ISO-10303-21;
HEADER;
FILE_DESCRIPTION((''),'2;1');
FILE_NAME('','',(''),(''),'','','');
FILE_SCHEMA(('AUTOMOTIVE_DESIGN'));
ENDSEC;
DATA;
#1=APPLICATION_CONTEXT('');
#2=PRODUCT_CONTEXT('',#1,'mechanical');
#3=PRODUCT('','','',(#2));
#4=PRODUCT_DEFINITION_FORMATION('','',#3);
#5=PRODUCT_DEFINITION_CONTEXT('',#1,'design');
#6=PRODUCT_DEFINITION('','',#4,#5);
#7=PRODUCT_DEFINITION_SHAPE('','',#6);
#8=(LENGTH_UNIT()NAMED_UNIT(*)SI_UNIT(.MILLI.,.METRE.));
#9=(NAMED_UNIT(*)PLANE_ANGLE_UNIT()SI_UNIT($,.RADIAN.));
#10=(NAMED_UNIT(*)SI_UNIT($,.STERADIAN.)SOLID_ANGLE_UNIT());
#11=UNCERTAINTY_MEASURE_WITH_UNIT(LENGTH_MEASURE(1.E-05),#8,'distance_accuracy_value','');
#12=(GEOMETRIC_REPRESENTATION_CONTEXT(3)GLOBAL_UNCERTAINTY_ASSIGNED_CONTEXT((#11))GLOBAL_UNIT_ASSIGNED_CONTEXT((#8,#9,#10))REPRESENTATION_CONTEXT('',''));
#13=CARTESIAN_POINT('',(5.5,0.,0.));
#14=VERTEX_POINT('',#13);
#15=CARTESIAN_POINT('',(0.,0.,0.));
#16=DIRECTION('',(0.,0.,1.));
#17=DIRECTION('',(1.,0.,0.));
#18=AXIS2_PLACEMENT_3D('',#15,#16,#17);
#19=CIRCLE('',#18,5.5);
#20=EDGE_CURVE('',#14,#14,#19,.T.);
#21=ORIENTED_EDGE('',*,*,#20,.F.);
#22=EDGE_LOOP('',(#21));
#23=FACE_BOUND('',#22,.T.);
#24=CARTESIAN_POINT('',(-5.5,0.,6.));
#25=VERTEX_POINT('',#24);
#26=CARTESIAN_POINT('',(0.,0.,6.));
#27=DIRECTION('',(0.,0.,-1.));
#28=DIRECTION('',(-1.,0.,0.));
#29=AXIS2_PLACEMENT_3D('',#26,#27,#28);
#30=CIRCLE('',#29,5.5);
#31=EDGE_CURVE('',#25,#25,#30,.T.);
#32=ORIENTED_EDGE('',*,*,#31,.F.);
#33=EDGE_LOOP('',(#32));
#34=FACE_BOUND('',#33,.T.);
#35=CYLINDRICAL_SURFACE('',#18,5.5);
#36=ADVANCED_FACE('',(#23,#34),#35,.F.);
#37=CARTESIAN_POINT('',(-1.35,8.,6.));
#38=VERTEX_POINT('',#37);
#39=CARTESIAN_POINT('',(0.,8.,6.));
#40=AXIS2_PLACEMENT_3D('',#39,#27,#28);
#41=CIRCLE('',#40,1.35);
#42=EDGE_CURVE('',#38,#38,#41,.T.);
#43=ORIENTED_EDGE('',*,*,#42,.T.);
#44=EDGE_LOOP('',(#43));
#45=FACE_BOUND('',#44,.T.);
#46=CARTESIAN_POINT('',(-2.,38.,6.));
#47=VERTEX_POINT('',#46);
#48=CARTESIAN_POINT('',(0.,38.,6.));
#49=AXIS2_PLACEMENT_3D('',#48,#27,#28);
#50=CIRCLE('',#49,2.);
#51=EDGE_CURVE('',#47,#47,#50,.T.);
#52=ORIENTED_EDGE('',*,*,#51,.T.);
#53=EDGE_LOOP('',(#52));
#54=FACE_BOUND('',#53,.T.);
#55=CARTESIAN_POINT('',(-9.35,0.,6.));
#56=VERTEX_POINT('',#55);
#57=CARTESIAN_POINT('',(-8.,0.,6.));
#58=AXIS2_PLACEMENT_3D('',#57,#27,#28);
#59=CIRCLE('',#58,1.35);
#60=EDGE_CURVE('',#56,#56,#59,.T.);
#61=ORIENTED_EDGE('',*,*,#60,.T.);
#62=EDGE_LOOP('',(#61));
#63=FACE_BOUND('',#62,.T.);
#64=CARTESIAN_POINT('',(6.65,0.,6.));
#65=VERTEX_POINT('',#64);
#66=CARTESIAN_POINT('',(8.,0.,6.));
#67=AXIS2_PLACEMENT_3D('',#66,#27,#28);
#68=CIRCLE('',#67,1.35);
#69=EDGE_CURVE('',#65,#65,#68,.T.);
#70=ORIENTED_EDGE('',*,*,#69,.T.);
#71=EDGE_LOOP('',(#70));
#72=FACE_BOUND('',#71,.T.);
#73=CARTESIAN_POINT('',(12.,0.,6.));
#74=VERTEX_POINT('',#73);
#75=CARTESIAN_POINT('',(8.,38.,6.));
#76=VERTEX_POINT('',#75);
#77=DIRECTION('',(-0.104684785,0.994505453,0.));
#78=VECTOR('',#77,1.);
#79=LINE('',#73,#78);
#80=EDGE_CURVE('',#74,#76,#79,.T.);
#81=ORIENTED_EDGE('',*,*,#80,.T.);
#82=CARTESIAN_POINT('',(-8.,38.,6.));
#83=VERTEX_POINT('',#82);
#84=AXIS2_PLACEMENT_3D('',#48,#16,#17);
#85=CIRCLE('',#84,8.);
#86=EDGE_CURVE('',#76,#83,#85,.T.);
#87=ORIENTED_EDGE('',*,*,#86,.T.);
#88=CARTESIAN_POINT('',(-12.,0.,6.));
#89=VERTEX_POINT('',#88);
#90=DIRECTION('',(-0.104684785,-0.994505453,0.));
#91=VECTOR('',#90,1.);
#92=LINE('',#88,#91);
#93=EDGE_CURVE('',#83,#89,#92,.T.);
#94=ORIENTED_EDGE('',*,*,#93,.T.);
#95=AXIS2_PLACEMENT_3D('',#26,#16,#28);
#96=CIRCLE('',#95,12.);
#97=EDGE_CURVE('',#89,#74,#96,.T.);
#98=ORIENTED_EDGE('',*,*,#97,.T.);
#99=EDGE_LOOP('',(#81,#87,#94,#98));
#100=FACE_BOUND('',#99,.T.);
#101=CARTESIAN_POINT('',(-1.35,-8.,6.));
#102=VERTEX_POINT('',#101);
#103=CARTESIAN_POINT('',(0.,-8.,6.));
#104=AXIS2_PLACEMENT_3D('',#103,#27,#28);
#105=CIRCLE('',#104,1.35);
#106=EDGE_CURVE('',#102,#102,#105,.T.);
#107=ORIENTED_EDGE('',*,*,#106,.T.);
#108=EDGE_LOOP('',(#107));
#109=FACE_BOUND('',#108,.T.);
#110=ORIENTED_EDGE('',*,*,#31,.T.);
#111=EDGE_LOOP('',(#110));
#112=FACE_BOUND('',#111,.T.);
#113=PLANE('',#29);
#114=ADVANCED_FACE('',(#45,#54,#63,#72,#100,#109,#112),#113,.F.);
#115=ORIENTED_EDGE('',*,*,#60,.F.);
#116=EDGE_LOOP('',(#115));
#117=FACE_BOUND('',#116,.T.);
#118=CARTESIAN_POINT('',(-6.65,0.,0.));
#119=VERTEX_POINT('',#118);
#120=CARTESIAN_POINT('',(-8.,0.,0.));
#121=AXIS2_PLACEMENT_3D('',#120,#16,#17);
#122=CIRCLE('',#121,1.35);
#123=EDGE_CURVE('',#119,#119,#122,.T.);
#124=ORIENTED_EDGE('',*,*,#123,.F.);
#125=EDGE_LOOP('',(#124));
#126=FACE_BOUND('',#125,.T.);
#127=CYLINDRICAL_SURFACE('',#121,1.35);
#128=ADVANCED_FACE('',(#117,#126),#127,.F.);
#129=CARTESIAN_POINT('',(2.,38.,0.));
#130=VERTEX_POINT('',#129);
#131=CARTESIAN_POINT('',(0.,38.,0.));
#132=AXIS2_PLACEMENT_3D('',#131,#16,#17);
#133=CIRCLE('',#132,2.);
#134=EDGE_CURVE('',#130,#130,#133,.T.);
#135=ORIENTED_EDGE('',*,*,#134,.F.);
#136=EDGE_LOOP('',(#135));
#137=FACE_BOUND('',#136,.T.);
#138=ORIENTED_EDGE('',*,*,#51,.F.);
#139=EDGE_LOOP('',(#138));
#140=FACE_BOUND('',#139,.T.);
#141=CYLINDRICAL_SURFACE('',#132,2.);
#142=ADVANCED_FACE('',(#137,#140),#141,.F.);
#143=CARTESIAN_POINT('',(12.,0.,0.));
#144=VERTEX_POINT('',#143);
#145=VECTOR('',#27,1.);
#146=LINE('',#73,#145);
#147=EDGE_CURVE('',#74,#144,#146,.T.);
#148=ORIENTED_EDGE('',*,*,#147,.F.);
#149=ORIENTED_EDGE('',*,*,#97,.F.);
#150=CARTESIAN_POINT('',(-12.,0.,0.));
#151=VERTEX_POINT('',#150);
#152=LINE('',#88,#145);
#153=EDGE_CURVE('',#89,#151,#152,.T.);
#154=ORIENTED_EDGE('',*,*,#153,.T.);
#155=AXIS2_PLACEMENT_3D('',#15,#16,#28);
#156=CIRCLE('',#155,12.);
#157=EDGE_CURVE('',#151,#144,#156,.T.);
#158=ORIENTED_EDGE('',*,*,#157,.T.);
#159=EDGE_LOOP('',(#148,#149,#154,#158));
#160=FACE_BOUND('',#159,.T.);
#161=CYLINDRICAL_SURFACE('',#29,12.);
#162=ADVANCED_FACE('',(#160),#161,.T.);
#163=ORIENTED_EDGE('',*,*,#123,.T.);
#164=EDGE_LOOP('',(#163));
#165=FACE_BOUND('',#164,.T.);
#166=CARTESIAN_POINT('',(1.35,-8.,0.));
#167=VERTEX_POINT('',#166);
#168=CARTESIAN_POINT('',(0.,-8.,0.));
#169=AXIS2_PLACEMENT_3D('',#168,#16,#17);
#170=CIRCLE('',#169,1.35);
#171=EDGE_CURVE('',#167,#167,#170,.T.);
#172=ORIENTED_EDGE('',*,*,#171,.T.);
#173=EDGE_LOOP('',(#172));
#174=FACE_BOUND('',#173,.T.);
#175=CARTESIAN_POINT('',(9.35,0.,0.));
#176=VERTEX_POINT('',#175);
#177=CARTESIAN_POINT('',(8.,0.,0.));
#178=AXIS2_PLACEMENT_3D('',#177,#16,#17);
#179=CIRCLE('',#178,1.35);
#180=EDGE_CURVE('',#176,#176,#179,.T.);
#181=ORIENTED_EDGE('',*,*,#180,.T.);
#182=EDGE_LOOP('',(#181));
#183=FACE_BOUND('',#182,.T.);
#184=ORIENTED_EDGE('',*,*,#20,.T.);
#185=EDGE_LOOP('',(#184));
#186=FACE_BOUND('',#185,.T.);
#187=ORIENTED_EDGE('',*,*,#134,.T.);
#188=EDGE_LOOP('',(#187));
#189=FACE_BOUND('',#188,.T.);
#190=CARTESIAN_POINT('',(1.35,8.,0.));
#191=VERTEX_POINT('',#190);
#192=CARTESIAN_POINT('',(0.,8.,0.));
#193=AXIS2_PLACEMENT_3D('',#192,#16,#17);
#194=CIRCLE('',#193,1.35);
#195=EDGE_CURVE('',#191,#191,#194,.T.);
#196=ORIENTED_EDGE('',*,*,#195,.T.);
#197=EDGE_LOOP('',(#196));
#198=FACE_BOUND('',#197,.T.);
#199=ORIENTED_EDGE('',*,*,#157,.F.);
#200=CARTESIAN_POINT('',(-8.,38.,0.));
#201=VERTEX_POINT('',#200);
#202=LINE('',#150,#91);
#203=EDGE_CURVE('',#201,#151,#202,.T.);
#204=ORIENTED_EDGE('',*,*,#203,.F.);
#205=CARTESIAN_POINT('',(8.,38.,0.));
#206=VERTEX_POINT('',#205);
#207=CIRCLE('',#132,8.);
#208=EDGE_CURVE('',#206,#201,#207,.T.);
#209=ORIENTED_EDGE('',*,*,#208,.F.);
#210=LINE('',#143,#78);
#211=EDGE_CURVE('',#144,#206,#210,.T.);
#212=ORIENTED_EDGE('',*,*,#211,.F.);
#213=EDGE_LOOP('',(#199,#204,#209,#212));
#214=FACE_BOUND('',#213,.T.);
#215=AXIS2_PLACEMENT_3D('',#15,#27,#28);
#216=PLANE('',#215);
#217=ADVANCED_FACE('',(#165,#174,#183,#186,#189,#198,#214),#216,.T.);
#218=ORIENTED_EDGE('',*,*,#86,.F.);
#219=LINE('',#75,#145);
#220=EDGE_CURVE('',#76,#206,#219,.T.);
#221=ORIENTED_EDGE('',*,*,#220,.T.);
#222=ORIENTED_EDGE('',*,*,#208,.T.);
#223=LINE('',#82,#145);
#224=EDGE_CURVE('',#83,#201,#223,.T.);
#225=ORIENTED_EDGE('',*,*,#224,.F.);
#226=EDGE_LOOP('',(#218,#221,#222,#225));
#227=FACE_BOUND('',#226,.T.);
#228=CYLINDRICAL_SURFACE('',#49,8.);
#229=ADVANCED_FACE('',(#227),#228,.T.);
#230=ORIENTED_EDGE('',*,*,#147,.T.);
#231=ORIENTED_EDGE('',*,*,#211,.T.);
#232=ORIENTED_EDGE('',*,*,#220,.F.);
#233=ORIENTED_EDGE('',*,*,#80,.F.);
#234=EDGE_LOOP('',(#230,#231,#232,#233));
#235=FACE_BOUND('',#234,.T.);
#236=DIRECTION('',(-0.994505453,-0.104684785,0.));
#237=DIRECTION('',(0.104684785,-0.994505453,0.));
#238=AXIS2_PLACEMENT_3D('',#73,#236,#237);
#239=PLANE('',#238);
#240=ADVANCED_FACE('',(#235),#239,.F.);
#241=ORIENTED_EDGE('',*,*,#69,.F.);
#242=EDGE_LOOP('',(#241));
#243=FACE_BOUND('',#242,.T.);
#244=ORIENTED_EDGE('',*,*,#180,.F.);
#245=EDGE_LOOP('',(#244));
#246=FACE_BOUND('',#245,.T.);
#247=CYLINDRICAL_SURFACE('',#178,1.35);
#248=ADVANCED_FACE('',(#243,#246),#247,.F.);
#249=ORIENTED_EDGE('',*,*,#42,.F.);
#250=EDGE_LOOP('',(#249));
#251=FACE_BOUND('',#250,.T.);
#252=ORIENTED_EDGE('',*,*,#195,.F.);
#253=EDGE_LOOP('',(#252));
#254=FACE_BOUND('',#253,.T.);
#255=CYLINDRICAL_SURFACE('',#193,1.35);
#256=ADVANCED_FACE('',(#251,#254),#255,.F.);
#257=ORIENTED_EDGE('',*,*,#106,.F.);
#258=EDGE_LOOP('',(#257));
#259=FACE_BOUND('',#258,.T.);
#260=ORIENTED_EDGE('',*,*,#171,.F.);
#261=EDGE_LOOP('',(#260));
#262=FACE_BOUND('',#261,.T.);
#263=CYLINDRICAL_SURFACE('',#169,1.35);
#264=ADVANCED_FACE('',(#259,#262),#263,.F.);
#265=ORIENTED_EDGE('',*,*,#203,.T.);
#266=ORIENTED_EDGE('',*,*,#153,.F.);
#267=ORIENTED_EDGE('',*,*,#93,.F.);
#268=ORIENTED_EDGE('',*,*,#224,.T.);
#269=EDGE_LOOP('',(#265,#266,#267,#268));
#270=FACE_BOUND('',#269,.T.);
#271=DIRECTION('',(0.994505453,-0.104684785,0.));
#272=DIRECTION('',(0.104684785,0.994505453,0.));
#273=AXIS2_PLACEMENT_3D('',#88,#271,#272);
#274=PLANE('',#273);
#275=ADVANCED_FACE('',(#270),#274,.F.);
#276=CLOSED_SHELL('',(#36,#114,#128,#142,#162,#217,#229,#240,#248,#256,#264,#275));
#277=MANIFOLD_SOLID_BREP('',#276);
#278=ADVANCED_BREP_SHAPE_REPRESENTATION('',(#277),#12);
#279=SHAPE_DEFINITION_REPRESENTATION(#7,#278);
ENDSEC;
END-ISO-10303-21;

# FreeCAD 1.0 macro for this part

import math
import FreeCAD as App
import Part
import Sketcher

V = App.Vector
Q = App.Units.Quantity

doc = App.newDocument("Part")
body = doc.addObject("PartDesign::Body", "Body")

# Sketch on XY plane
sketch1 = body.newObject("Sketcher::SketchObject", "Sketch")
sketch1.AttachmentSupport = (doc.getObject("XY_Plane"), [""])
sketch1.MapMode = "FlatFace"
sketch1.addGeometry([
    Part.LineSegment(V(12, 0, 0), V(8, 38, 0)),
    Part.ArcOfCircle(Part.Circle(V(0, 38, 0), V(0, 0, 1), 8), math.radians(0), math.radians(180)),
    Part.LineSegment(V(-8, 38, 0), V(-12, 0, 0)),
    Part.ArcOfCircle(Part.Circle(V(0, 0, 0), V(0, 0, 1), 12), math.radians(180), math.radians(360)),
], False)
sketch1.addConstraint([
    Sketcher.Constraint("Coincident", 0, 2, 1, 1),
    Sketcher.Constraint("Coincident", 1, 2, 2, 1),
    Sketcher.Constraint("Coincident", 2, 2, 3, 1),
    Sketcher.Constraint("Coincident", 3, 2, 0, 1),
    Sketcher.Constraint("Coincident", 3, 3, -1, 1),
    Sketcher.Constraint("Symmetric", 0, 2, 1, 2, -2),
    Sketcher.Constraint("PointOnObject", 2, 2, -1),
    Sketcher.Constraint("PointOnObject", 3, 2, -1),
    Sketcher.Constraint("Horizontal", 1, 3, 0, 2),
    Sketcher.Constraint("Radius", 1, Q("8 mm")),
    Sketcher.Constraint("Radius", 3, Q("12 mm")),
    Sketcher.Constraint("DistanceY", -1, 1, 1, 3, Q("38 mm")),
])
pad1 = body.newObject("PartDesign::Pad", "Pad")
pad1.Profile = sketch1
pad1.Length = 6

# Sketch on XY plane
sketch2 = body.newObject("Sketcher::SketchObject", "Sketch001")
sketch2.AttachmentSupport = (doc.getObject("XY_Plane"), [""])
sketch2.MapMode = "FlatFace"
sketch2.AttachmentOffset = App.Placement(V(0, 0, 6), App.Rotation())
sketch2.addGeometry([
    Part.Circle(V(0, 0, 0), V(0, 0, 1), 5.5),  # 0
    Part.Circle(V(8, 0, 0), V(0, 0, 1), 1.4),  # 1
    Part.Circle(V(0, -8, 0), V(0, 0, 1), 1.4),  # 2
    Part.Circle(V(-8, 0, 0), V(0, 0, 1), 1.4),  # 3
    Part.Circle(V(0, 8, 0), V(0, 0, 1), 1.4),  # 4
    Part.Circle(V(0, 38, 0), V(0, 0, 1), 2),  # 5
], False)
sketch2.addConstraint([
    Sketcher.Constraint("Coincident", 0, 3, -1, 1),
    Sketcher.Constraint("Equal", 1, 2),
    Sketcher.Constraint("Equal", 2, 3),
    Sketcher.Constraint("Equal", 3, 4),
    Sketcher.Constraint("Symmetric", 1, 3, 3, 3, -1, 1),
    Sketcher.Constraint("Symmetric", 2, 3, 4, 3, -1, 1),
    Sketcher.Constraint("PointOnObject", 1, 3, -1),
    Sketcher.Constraint("PointOnObject", 2, 3, -2),
    Sketcher.Constraint("PointOnObject", 5, 3, -2),
    Sketcher.Constraint("Diameter", 0, Q("11 mm")),
    Sketcher.Constraint("Diameter", 5, Q("4 mm")),
    Sketcher.Constraint("Diameter", 1, Q("2.7 mm")),
    Sketcher.Constraint("DistanceX", -1, 1, 1, 3, Q("8 mm")),
    Sketcher.Constraint("DistanceY", 2, 3, -1, 1, Q("8 mm")),
    Sketcher.Constraint("DistanceY", -1, 1, 5, 3, Q("38 mm")),
])
pocket1 = body.newObject("PartDesign::Pocket", "Pocket")
pocket1.Profile = sketch2
pocket1.Type = "ThroughAll"
pocket1.Midplane = True

doc.recompute()
